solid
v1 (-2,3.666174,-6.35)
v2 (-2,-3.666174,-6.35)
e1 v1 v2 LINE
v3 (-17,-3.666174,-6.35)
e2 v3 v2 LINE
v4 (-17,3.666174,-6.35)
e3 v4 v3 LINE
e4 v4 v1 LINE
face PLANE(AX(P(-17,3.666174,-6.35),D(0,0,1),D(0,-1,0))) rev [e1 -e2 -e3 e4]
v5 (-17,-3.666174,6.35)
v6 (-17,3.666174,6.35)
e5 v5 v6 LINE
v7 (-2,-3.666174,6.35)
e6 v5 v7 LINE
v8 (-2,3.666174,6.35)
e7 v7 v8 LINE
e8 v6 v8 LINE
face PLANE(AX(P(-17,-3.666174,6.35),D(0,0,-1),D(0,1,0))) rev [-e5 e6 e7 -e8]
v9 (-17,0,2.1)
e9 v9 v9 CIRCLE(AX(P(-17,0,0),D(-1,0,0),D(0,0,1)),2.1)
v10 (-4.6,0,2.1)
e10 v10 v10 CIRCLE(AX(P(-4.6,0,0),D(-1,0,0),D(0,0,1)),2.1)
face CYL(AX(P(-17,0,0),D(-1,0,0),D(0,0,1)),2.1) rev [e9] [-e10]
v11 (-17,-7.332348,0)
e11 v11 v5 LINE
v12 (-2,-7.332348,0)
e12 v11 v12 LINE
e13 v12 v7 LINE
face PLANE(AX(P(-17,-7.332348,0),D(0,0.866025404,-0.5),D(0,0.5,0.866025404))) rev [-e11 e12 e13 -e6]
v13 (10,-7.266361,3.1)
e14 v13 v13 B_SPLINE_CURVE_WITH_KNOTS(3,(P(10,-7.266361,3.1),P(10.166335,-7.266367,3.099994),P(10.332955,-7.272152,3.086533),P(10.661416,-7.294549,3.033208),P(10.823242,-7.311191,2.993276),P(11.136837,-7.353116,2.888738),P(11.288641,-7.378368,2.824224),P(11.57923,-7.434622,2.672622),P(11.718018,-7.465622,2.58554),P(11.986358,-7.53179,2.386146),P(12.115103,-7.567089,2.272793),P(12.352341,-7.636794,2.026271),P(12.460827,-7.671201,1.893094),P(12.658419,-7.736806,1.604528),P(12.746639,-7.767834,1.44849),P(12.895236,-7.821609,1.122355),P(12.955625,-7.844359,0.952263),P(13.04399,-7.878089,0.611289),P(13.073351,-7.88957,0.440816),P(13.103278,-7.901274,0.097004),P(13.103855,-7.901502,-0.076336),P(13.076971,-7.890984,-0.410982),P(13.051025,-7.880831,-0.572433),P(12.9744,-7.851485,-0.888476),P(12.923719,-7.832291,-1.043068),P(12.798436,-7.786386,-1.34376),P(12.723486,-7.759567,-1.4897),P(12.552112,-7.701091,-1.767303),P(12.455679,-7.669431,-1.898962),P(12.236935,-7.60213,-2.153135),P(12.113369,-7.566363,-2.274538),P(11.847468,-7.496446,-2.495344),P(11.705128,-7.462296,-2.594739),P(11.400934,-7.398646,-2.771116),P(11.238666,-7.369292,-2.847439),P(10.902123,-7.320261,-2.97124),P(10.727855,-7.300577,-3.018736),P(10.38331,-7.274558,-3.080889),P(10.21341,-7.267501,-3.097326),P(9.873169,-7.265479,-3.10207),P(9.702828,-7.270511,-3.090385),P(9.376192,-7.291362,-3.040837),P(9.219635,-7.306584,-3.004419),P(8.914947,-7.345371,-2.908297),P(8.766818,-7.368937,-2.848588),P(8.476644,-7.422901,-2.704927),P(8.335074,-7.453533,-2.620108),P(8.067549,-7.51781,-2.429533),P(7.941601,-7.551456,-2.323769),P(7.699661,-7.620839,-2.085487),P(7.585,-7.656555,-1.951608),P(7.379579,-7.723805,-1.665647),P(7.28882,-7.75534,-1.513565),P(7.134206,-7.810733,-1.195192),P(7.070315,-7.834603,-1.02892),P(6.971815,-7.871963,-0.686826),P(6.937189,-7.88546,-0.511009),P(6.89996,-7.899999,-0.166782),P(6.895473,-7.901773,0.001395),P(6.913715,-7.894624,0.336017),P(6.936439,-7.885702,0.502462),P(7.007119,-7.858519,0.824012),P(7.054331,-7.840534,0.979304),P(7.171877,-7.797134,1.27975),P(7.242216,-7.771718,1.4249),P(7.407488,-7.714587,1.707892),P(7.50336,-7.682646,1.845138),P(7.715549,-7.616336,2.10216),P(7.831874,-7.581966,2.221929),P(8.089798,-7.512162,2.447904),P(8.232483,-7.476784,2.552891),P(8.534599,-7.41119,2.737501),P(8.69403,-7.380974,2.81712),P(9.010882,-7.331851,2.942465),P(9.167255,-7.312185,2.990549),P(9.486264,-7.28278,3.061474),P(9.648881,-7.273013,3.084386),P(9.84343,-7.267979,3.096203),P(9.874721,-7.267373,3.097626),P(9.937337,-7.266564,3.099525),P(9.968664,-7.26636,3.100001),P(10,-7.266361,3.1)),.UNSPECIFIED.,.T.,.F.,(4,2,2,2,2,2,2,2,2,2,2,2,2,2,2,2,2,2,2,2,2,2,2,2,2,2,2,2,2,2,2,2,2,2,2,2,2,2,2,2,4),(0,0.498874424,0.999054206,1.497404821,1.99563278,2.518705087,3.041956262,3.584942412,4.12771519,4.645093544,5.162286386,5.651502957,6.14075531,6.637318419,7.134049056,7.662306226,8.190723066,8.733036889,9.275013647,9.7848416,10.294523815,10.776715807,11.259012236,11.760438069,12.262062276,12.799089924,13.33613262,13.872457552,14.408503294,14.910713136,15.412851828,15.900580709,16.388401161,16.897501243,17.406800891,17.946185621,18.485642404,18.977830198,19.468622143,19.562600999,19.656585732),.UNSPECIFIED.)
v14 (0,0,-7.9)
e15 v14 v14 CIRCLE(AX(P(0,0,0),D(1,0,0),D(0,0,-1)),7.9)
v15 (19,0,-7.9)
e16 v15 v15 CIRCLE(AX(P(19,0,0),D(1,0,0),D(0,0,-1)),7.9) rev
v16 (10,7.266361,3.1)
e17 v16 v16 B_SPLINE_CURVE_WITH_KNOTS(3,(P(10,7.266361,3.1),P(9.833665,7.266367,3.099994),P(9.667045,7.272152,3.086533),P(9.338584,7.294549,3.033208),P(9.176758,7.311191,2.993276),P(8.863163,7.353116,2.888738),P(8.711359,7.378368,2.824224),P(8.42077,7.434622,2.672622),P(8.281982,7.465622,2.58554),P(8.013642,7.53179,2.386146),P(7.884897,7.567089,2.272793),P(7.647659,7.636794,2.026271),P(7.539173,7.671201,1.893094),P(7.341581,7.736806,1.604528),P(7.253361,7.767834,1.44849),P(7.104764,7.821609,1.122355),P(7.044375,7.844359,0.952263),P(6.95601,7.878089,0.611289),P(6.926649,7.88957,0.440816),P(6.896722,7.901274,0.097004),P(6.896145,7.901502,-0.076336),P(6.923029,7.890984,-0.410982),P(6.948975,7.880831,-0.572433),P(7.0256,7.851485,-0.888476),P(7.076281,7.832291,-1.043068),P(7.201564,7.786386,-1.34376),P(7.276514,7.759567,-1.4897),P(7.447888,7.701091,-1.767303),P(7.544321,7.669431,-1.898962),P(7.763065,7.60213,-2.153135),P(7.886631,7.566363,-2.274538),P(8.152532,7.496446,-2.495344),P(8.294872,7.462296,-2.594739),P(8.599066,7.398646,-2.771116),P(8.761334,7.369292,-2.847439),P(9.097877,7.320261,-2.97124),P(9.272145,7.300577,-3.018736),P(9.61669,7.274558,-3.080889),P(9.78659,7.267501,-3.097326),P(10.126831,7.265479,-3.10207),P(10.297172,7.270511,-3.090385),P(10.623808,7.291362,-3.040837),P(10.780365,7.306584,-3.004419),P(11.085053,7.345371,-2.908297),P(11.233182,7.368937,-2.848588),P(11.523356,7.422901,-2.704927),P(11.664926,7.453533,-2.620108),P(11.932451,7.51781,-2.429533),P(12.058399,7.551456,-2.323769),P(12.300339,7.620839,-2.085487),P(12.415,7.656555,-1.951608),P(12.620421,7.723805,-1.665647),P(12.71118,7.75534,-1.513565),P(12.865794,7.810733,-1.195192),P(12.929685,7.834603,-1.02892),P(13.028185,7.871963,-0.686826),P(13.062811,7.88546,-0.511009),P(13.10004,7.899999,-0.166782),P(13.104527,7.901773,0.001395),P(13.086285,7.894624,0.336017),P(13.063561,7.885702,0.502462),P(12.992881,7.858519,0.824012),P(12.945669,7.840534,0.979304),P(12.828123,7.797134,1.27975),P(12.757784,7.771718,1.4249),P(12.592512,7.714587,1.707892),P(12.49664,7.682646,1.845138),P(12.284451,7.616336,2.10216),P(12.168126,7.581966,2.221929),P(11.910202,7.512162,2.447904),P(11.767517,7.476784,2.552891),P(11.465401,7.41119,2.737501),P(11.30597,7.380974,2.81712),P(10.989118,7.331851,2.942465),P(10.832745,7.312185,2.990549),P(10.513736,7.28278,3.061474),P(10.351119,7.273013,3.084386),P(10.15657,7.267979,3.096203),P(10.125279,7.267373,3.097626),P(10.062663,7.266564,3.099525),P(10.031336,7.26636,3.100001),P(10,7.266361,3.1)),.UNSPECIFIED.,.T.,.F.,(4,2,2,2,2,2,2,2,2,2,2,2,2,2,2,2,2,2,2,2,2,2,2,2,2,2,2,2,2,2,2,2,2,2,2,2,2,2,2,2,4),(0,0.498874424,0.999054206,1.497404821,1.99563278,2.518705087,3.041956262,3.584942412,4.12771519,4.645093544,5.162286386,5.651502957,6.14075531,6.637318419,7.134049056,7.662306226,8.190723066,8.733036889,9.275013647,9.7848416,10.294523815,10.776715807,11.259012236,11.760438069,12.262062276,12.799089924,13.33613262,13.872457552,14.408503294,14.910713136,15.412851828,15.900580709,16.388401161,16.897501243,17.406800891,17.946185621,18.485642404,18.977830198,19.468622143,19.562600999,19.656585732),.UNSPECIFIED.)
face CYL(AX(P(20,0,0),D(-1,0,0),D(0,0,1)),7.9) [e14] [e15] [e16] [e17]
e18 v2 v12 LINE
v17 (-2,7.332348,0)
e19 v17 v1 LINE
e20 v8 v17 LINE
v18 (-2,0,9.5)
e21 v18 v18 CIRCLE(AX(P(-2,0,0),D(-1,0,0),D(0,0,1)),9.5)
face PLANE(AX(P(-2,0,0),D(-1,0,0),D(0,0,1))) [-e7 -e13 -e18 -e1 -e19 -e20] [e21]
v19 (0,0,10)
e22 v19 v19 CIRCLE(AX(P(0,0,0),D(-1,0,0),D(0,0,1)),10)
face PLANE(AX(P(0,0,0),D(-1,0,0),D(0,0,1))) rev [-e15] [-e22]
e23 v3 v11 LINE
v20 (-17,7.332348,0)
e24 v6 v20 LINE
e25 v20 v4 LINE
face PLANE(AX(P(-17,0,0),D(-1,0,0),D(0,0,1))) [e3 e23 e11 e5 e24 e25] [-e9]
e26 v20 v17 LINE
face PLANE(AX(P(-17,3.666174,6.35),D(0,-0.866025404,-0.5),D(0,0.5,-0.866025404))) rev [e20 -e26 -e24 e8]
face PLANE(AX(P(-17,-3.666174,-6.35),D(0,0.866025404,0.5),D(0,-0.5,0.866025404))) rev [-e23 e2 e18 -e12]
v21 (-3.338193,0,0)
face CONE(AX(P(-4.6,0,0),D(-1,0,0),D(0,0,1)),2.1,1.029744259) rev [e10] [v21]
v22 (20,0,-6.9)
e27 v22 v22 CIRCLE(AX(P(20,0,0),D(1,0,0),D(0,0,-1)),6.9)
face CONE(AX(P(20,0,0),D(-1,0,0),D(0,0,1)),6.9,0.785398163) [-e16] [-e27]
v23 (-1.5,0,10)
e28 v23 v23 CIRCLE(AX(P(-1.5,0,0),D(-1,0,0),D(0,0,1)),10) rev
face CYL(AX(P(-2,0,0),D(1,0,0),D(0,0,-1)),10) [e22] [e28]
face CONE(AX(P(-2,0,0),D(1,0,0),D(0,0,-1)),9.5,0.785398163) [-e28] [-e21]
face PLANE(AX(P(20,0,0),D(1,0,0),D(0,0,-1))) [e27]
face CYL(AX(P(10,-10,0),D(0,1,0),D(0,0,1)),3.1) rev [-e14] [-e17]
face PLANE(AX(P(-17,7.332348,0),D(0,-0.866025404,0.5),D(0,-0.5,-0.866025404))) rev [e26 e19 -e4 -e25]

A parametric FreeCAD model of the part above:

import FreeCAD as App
import Part
import Sketcher
from FreeCAD import Vector
Q = App.Units.Quantity


def edges_at(feature, points):
    """Names of the edges that pass closest to the given points."""
    edges = feature.Shape.Edges
    near = lambda p: min(range(len(edges)), key=lambda i: edges[i].distToShape(Part.Vertex(*p))[0])
    return sorted({f"Edge{near(p) + 1}" for p in points})


def add_polygon(sketch, points):
    """Adds a closed chain of lines whose ends are joined by coincident constraints."""
    first, n = sketch.GeometryCount, len(points)
    for a, b in zip(points, points[1:] + points[:1]):
        sketch.addGeometry(Part.LineSegment(App.Vector(*a, 0), App.Vector(*b, 0)), False)
    for i in range(n):
        sketch.addConstraint(Sketcher.Constraint("Coincident", first + i, 2, first + (i + 1) % n, 1))

doc = App.newDocument("Part")
body = doc.addObject("PartDesign::Body", "Body")

# Sketch on YZ plane
sketch1 = body.newObject("Sketcher::SketchObject", "Sketch")
sketch1.AttachmentSupport = (doc.getObject("YZ_Plane"), [""])
sketch1.MapMode = "FlatFace"
sketch1.addGeometry(Part.Circle(Vector(0, 0, 0), Vector(0, 0, 1), 8), False)
sketch1.addConstraint([
    Sketcher.Constraint("Coincident", 0, 3, -1, 1),
    Sketcher.Constraint("Diameter", 0, Q("15.8 mm")),
])
pad1 = body.newObject("PartDesign::Pad", "Pad")
pad1.Profile = sketch1
pad1.Length = 20

# Sketch on YZ plane
sketch2 = body.newObject("Sketcher::SketchObject", "Sketch001")
sketch2.AttachmentSupport = (doc.getObject("YZ_Plane"), [""])
sketch2.MapMode = "FlatFace"
sketch2.addGeometry(Part.Circle(Vector(0, 0, 0), Vector(0, 0, 1), 10), False)
sketch2.addConstraint([
    Sketcher.Constraint("Coincident", 0, 3, -1, 1),
    Sketcher.Constraint("Diameter", 0, Q("20 mm")),
])
pad2 = body.newObject("PartDesign::Pad", "Pad001")
pad2.Profile = sketch2
pad2.Length = 2
pad2.Reversed = True

# Sketch on YZ plane
sketch3 = body.newObject("Sketcher::SketchObject", "Sketch002")
sketch3.AttachmentSupport = (doc.getObject("YZ_Plane"), [""])
sketch3.MapMode = "FlatFace"
sketch3.AttachmentOffset = App.Placement(Vector(0, 0, -2), App.Rotation())
add_polygon(sketch3, [(4, 6), (7, 0), (4, -6), (-4, -6), (-7, 0), (-4, 6)])  # lines 0-5
sketch3.addConstraint([
    Sketcher.Constraint("Horizontal", 2),
    Sketcher.Constraint("Horizontal", 5),
    Sketcher.Constraint("Symmetric", 0, 2, 3, 2, -1, 1),
    Sketcher.Constraint("Symmetric", 1, 2, 4, 2, -1, 1),
    Sketcher.Constraint("PointOnObject", 0, 2, -1),
    Sketcher.Constraint("Parallel", 0, 3),
    Sketcher.Constraint("Vertical", 2, 2, 4, 2),
    Sketcher.Constraint("Angle", 0, Q("-60 deg")),
    Sketcher.Constraint("DistanceY", 2, 2, 4, 2, Q("12.7 mm")),
    Sketcher.Constraint("DistanceX", 2, 2, 2, 1, Q("7.332348 mm")),
])
pad3 = body.newObject("PartDesign::Pad", "Pad002")
pad3.Profile = sketch3
pad3.Length = 15
pad3.Reversed = True
doc.recompute()

chamfer = body.newObject("PartDesign::Chamfer", "Chamfer")
chamfer.Base = (pad3, edges_at(pad3, [(-2, 0, -10)]))
chamfer.Size = 0.5

# Sketch on YZ plane
sketch4 = body.newObject("Sketcher::SketchObject", "Sketch003")
sketch4.AttachmentSupport = (doc.getObject("YZ_Plane"), [""])
sketch4.MapMode = "FlatFace"
sketch4.AttachmentOffset = App.Placement(Vector(0, 0, -17), App.Rotation())
sketch4.addGeometry(Part.Circle(Vector(0, 0, 0), Vector(0, 0, 1), 2.1), False)
sketch4.addConstraint([
    Sketcher.Constraint("Coincident", 0, 3, -1, 1),
    Sketcher.Constraint("Diameter", 0, Q("4.2 mm")),
])
doc.recompute()
hole = body.newObject("PartDesign::Hole", "Hole")
hole.Profile = sketch4
hole.ThreadType = "None"
hole.Diameter = 4.2
hole.DepthType = "Dimension"
hole.Depth = 12.4
hole.DrillPoint = "Angled"
hole.DrillPointAngle = 118
hole.Reversed = True

# Sketch on XZ plane
sketch5 = body.newObject("Sketcher::SketchObject", "Sketch004")
sketch5.AttachmentSupport = (doc.getObject("XZ_Plane"), [""])
sketch5.MapMode = "FlatFace"
sketch5.addGeometry(Part.Circle(Vector(10, 0, 0), Vector(0, 0, 1), 3.1), False)
sketch5.addConstraint([
    Sketcher.Constraint("PointOnObject", 0, 3, -1),
    Sketcher.Constraint("Diameter", 0, Q("6.2 mm")),
    Sketcher.Constraint("DistanceX", -1, 1, 0, 3, Q("10 mm")),
])
pocket1 = body.newObject("PartDesign::Pocket", "Pocket")
pocket1.Profile = sketch5
pocket1.Type = "ThroughAll"
pocket1.Midplane = True
doc.recompute()

chamfer2 = body.newObject("PartDesign::Chamfer", "Chamfer001")
chamfer2.Base = (pocket1, edges_at(pocket1, [(20, 0, 7.9)]))
chamfer2.Size = 1

doc.recompute()
